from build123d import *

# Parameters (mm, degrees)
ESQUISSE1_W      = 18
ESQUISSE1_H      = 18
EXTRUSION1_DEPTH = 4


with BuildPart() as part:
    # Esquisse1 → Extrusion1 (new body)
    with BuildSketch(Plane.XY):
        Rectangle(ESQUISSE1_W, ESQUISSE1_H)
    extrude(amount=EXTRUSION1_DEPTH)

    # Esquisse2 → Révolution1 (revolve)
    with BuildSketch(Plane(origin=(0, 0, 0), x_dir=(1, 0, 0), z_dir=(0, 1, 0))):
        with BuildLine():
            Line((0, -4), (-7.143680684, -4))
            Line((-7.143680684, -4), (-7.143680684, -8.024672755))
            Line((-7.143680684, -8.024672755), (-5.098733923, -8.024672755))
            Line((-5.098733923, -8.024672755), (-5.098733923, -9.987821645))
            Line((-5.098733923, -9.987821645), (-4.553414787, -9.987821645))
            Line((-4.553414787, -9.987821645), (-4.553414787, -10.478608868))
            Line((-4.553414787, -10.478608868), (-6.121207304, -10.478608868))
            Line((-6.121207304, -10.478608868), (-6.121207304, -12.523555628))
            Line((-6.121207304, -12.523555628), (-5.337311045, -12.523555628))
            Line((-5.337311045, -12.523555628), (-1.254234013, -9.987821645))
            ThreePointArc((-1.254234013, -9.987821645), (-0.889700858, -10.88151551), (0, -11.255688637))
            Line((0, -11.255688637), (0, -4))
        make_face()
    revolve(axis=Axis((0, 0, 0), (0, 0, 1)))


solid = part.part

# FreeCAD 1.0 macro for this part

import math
import FreeCAD as App
import Part
import Sketcher
Q = App.Units.Quantity

doc = App.newDocument("Part")
body = doc.addObject("PartDesign::Body", "Body")

# Sketch on XY plane
sketch1 = doc.addObject("Sketcher::SketchObject", "Sketch")
body.addObject(sketch1)
sketch1.AttachmentSupport = (doc.XY_Plane, [""])
sketch1.MapMode = "FlatFace"
sketch1.addGeometry([
    Part.LineSegment(App.Vector(-9, 9, 0), App.Vector(-9, -9, 0)),
    Part.LineSegment(App.Vector(-9, -9, 0), App.Vector(9, -9, 0)),
    Part.LineSegment(App.Vector(9, -9, 0), App.Vector(9, 9, 0)),
    Part.LineSegment(App.Vector(9, 9, 0), App.Vector(-9, 9, 0)),
], False)
sketch1.addConstraint([
    Sketcher.Constraint("Coincident", 0, 2, 1, 1),
    Sketcher.Constraint("Coincident", 1, 2, 2, 1),
    Sketcher.Constraint("Coincident", 2, 2, 3, 1),
    Sketcher.Constraint("Coincident", 3, 2, 0, 1),
    Sketcher.Constraint("Vertical", 0),
    Sketcher.Constraint("Horizontal", 1),
    Sketcher.Constraint("Vertical", 2),
    Sketcher.Constraint("Horizontal", 3),
    Sketcher.Constraint("Symmetric", 0, 2, 2, 2, -1, 1),
    Sketcher.Constraint("Equal", 3, 0),
    Sketcher.Constraint("DistanceX", 1, 1, 1, 2, Q("18 mm")),
])
pad1 = doc.addObject("PartDesign::Pad", "Pad")
body.addObject(pad1)
pad1.Profile = sketch1
pad1.Length = 4

# Sketch on XZ plane
sketch2 = doc.addObject("Sketcher::SketchObject", "Sketch001")
body.addObject(sketch2)
sketch2.AttachmentSupport = (doc.XZ_Plane, [""])
sketch2.MapMode = "FlatFace"
sketch2.addGeometry([
    Part.LineSegment(App.Vector(0, 4, 0), App.Vector(-7.14, 4, 0)),  # 0
    Part.LineSegment(App.Vector(-7.14, 4, 0), App.Vector(-7.14, 8.02, 0)),  # 1
    Part.LineSegment(App.Vector(-7.14, 8.02, 0), App.Vector(-5.1, 8.02, 0)),  # 2
    Part.LineSegment(App.Vector(-5.1, 8.02, 0), App.Vector(-5.1, 9.99, 0)),  # 3
    Part.LineSegment(App.Vector(-5.1, 9.99, 0), App.Vector(-4.55, 9.99, 0)),  # 4
    Part.LineSegment(App.Vector(-4.55, 9.99, 0), App.Vector(-4.55, 10.48, 0)),  # 5
    Part.LineSegment(App.Vector(-4.55, 10.48, 0), App.Vector(-6.12, 10.48, 0)),  # 6
    Part.LineSegment(App.Vector(-6.12, 10.48, 0), App.Vector(-6.12, 12.52, 0)),  # 7
    Part.LineSegment(App.Vector(-6.12, 12.52, 0), App.Vector(-5.34, 12.52, 0)),  # 8
    Part.LineSegment(App.Vector(-5.34, 12.52, 0), App.Vector(-1.25, 9.99, 0)),  # 9
    Part.ArcOfCircle(Part.Circle(App.Vector(0.01, 9.99, 0), App.Vector(0, 0, 1), 1.26), math.radians(90), math.radians(180)),  # 10
    Part.LineSegment(App.Vector(0, 11.26, 0), App.Vector(0, 4, 0)),  # 11
], False)
sketch2.addConstraint([
    Sketcher.Constraint("Coincident", 0, 2, 1, 1),
    Sketcher.Constraint("Coincident", 1, 2, 2, 1),
    Sketcher.Constraint("Coincident", 2, 2, 3, 1),
    Sketcher.Constraint("Coincident", 3, 2, 4, 1),
    Sketcher.Constraint("Coincident", 4, 2, 5, 1),
    Sketcher.Constraint("Coincident", 5, 2, 6, 1),
    Sketcher.Constraint("Coincident", 6, 2, 7, 1),
    Sketcher.Constraint("Coincident", 7, 2, 8, 1),
    Sketcher.Constraint("Coincident", 8, 2, 9, 1),
    Sketcher.Constraint("Coincident", 9, 2, 10, 2),
    Sketcher.Constraint("Coincident", 10, 1, 11, 1),
    Sketcher.Constraint("Coincident", 11, 2, 0, 1),
    Sketcher.Constraint("Horizontal", 0),
    Sketcher.Constraint("Vertical", 1),
    Sketcher.Constraint("Horizontal", 2),
    Sketcher.Constraint("Vertical", 3),
    Sketcher.Constraint("Horizontal", 4),
    Sketcher.Constraint("Vertical", 5),
    Sketcher.Constraint("Horizontal", 6),
    Sketcher.Constraint("Vertical", 7),
    Sketcher.Constraint("Horizontal", 8),
    Sketcher.Constraint("Vertical", 11),
    Sketcher.Constraint("PointOnObject", 10, 1, -2),
    Sketcher.Constraint("Horizontal", 4, 2, 9, 2),
    Sketcher.Constraint("Equal", 2, 7),
    Sketcher.Constraint("DistanceY", -1, 1, 0, 2, Q("4 mm")),
    Sketcher.Constraint("Radius", 10, Q("1.261069 mm")),
    Sketcher.Constraint("Distance", 9, Q("4.806398 mm")),
    Sketcher.Constraint("DistanceX", 0, 2, 0, 1, Q("7.143681 mm")),
    Sketcher.Constraint("DistanceX", 4, 1, 4, 2, Q("0.545319 mm")),
    Sketcher.Constraint("DistanceY", 3, 1, 3, 2, Q("1.963149 mm")),
    Sketcher.Constraint("DistanceY", 11, 2, 11, 1, Q("7.255689 mm")),
    Sketcher.Constraint("DistanceX", 3, 2, 9, 2, Q("3.8445 mm")),
    Sketcher.Constraint("DistanceX", 2, 1, 2, 2, Q("2.044947 mm")),
    Sketcher.Constraint("DistanceX", 6, 2, 6, 1, Q("1.567793 mm")),
    Sketcher.Constraint("DistanceX", 8, 1, 8, 2, Q("0.783896 mm")),
    Sketcher.Constraint("DistanceY", 1, 1, 1, 2, Q("4.024673 mm")),
])
revolution = doc.addObject("PartDesign::Revolution", "Revolution")
body.addObject(revolution)
revolution.Profile = sketch2
revolution.ReferenceAxis = (sketch2, ["V_Axis"])
revolution.Angle = 360

doc.recompute()
